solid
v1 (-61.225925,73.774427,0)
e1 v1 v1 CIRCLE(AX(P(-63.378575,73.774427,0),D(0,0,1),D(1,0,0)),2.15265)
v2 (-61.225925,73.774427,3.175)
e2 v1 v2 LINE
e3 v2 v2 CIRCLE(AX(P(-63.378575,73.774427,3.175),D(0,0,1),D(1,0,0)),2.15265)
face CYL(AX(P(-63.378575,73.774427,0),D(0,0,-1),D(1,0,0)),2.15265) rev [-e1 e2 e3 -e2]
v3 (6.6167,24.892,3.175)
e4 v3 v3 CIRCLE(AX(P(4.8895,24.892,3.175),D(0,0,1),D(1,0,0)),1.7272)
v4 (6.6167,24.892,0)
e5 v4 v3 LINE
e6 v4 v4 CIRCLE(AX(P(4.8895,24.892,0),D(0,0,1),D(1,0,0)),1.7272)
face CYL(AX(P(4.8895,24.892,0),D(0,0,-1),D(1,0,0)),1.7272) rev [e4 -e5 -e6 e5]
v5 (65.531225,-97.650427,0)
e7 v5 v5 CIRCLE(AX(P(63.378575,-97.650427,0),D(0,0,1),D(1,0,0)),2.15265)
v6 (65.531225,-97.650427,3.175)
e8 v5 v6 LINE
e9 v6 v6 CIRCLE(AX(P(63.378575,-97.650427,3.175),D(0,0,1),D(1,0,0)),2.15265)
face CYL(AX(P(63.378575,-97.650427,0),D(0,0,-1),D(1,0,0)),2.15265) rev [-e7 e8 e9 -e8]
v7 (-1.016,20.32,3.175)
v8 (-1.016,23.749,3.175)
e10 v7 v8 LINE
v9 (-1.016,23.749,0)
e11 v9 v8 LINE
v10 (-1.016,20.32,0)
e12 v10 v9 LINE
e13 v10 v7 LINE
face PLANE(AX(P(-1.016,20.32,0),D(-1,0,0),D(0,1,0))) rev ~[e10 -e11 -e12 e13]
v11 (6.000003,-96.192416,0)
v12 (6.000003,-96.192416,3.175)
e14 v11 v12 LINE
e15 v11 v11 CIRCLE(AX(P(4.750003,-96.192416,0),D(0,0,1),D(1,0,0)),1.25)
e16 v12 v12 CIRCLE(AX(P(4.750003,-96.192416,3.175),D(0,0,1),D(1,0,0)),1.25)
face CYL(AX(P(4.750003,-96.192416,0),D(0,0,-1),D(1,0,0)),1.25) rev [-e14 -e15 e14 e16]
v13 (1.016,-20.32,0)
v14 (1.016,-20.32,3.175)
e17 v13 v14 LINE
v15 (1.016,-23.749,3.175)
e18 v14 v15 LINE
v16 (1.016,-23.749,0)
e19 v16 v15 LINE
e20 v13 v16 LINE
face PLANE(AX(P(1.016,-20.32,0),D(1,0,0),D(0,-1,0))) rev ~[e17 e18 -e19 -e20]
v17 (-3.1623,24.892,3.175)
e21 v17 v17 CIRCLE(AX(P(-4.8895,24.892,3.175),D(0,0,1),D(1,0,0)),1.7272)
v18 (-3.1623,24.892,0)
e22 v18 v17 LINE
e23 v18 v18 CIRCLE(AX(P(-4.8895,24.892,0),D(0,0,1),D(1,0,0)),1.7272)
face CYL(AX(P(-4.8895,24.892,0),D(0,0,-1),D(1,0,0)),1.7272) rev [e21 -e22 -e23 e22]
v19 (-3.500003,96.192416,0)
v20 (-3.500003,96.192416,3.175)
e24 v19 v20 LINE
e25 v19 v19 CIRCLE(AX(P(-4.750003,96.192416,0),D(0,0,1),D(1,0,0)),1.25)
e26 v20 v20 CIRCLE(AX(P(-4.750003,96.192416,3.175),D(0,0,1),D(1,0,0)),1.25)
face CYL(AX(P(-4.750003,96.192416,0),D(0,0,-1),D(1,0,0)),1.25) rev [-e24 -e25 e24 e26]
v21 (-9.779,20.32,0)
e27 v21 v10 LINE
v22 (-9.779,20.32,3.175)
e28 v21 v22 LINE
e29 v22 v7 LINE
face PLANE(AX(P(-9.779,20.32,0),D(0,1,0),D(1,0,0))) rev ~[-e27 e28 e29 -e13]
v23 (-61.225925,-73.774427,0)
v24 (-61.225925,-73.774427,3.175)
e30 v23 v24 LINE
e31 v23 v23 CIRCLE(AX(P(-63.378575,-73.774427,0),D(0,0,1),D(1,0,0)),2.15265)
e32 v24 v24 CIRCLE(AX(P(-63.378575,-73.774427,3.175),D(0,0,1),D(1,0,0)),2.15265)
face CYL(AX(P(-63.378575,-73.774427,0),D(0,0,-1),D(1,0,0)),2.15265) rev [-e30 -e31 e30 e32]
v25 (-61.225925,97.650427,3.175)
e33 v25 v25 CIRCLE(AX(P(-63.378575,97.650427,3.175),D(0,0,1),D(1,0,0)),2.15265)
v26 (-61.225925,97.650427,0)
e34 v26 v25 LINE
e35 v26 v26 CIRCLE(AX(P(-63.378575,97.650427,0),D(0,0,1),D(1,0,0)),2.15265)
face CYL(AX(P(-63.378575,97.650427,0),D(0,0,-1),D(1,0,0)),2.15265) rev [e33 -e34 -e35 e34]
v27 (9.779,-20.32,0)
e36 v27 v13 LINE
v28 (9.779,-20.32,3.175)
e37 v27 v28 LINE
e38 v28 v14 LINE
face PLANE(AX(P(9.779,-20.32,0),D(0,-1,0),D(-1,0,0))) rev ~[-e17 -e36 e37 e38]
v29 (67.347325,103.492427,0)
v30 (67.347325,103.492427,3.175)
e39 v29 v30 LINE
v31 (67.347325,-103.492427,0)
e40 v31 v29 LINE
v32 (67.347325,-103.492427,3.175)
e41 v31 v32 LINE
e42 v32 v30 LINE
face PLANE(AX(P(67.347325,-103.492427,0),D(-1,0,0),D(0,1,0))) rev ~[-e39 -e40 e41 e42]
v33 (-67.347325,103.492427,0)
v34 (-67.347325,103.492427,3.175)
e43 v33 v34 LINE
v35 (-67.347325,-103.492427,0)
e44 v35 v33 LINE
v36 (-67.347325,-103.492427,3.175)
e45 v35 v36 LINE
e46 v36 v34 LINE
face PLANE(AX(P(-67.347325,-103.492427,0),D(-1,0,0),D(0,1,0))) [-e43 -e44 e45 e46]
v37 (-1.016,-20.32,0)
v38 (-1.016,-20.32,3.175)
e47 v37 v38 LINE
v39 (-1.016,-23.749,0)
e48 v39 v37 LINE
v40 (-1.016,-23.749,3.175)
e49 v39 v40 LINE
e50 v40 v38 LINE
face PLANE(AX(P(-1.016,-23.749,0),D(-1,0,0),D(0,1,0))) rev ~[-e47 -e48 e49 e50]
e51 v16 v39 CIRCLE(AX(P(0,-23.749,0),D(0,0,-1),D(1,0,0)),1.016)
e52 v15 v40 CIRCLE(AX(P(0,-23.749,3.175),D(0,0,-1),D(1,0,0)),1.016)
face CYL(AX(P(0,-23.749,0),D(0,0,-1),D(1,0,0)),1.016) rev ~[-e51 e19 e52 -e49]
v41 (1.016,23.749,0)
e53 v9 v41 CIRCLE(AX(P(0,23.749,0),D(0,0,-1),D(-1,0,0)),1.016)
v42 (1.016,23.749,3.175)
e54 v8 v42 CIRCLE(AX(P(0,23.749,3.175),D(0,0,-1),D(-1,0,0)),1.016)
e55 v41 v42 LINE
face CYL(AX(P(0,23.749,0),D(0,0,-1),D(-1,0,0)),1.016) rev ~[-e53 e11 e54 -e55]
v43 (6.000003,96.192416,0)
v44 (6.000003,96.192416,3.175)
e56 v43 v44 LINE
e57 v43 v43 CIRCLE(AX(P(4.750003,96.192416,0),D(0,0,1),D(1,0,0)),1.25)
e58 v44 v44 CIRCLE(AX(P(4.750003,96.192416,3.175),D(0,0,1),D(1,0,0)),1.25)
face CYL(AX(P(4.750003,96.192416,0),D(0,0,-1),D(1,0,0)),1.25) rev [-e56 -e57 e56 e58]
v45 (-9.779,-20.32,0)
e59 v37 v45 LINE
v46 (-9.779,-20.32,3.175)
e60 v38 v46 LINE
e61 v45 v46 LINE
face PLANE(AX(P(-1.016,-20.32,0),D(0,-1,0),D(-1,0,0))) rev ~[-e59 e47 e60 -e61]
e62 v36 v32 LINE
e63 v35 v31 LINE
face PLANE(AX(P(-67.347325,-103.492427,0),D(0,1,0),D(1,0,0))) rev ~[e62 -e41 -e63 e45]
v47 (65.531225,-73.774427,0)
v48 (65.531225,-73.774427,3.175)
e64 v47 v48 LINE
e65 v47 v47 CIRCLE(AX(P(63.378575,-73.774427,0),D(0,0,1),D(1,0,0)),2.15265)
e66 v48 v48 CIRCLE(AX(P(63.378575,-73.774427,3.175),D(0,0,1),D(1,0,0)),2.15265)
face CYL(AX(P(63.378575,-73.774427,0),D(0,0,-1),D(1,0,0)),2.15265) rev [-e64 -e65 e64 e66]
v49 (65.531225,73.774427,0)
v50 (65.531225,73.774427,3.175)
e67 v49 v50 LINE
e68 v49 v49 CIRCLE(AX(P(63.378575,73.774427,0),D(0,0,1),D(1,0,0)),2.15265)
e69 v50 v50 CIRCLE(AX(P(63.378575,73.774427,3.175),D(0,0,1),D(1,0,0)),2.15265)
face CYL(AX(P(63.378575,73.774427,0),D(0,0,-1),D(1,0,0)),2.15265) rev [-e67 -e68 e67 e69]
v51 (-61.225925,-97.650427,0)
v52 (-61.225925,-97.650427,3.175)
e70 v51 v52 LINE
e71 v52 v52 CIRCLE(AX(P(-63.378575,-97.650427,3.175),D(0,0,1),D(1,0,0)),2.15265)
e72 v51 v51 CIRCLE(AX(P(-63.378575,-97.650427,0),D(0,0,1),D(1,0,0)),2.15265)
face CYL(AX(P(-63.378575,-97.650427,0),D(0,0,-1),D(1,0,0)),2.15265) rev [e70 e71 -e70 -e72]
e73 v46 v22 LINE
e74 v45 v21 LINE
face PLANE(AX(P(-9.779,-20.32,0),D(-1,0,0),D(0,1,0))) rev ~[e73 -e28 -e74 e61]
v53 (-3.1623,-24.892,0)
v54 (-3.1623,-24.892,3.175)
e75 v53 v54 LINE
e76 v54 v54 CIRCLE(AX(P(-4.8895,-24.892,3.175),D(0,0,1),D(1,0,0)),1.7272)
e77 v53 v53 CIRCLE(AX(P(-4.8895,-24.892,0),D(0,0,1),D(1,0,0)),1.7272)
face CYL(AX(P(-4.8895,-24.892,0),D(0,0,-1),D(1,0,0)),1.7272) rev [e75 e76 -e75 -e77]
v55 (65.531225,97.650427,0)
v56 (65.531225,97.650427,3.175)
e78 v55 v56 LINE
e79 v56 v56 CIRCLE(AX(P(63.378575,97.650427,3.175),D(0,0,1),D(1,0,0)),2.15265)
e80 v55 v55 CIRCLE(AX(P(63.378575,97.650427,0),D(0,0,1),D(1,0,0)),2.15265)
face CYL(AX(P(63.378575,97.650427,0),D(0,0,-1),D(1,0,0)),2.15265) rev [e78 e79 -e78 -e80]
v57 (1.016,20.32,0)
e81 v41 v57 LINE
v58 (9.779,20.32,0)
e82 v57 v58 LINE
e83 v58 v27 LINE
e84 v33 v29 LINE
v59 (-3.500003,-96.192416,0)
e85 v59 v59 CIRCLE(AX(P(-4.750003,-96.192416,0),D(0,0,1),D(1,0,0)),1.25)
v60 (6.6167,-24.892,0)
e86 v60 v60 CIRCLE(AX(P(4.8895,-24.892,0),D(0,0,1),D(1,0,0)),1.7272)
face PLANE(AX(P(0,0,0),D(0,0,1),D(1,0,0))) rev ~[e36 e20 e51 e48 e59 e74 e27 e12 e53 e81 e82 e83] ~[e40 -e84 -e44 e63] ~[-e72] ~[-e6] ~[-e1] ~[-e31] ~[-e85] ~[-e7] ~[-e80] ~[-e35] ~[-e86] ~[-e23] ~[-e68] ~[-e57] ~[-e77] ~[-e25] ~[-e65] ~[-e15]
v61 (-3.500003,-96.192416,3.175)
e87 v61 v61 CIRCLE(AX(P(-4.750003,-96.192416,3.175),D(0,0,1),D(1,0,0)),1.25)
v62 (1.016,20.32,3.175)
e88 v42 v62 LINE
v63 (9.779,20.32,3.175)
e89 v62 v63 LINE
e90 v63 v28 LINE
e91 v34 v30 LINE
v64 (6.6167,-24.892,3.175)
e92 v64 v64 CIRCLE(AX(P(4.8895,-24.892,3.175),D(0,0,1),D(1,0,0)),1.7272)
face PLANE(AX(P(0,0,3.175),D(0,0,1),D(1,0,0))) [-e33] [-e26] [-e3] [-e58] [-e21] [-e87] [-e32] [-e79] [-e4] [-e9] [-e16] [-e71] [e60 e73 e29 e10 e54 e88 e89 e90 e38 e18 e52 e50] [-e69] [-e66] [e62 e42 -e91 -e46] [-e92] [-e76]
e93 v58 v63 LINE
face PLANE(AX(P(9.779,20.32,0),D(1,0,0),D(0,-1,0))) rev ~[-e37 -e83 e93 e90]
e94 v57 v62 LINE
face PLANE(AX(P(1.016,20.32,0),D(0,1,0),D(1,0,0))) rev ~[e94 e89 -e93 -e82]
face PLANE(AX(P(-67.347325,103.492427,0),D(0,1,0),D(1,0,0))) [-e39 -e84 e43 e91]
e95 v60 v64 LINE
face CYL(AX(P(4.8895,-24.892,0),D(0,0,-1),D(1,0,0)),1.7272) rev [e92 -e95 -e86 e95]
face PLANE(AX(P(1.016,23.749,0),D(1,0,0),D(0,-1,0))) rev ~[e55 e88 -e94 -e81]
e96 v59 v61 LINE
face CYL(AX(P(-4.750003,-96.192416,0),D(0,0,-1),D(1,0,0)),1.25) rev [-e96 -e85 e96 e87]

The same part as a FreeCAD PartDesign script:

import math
import FreeCAD as App
import Part
import Sketcher

V = App.Vector
Q = App.Units.Quantity


def add_polygon(sketch, points):
    """Adds a closed chain of lines whose ends are joined by coincident constraints."""
    first, n = sketch.GeometryCount, len(points)
    for a, b in zip(points, points[1:] + points[:1]):
        sketch.addGeometry(Part.LineSegment(App.Vector(*a, 0), App.Vector(*b, 0)), False)
    for i in range(n):
        sketch.addConstraint(Sketcher.Constraint("Coincident", first + i, 2, first + (i + 1) % n, 1))

doc = App.newDocument("Part")
body = doc.addObject("PartDesign::Body", "Body")

# Sketch on XY plane
sketch1 = body.newObject("Sketcher::SketchObject", "Sketch")
sketch1.AttachmentSupport = (doc.getObject("XY_Plane"), [""])
sketch1.MapMode = "FlatFace"
add_polygon(sketch1, [(-67.3, 103.5), (-67.3, -103.5), (67.3, -103.5), (67.3, 103.5)])  # lines 0-3
sketch1.addGeometry(Part.Circle(V(-63.4, -97.7, 0), V(0, 0, 1), 2.2), False)  # 4
sketch1.addGeometry(Part.Circle(V(-63.4, -73.8, 0), V(0, 0, 1), 2.2), False)  # 5
sketch1.addGeometry(Part.Circle(V(-4.8, -96.2, 0), V(0, 0, 1), 1.2), False)  # 6
sketch1.addGeometry(Part.Circle(V(-4.9, -24.9, 0), V(0, 0, 1), 1.7), False)  # 7
sketch1.addGeometry(Part.Circle(V(4.8, -96.2, 0), V(0, 0, 1), 1.2), False)  # 8
sketch1.addGeometry(Part.Circle(V(63.4, -97.7, 0), V(0, 0, 1), 2.2), False)  # 9
sketch1.addGeometry(Part.Circle(V(63.4, -73.8, 0), V(0, 0, 1), 2.2), False)  # 10
sketch1.addGeometry(Part.Circle(V(4.9, -24.9, 0), V(0, 0, 1), 1.7), False)  # 11
sketch1.addGeometry(Part.LineSegment(V(-1, -23.7, 0), V(-1, -20.3, 0)), False)  # 12
sketch1.addGeometry(Part.LineSegment(V(-1, -20.3, 0), V(-9.8, -20.3, 0)), False)  # 13
sketch1.addGeometry(Part.LineSegment(V(-9.8, -20.3, 0), V(-9.8, 20.3, 0)), False)  # 14
sketch1.addGeometry(Part.LineSegment(V(-9.8, 20.3, 0), V(-1, 20.3, 0)), False)  # 15
sketch1.addGeometry(Part.LineSegment(V(-1, 20.3, 0), V(-1, 23.7, 0)), False)  # 16
sketch1.addGeometry(Part.ArcOfCircle(Part.Circle(V(0, 23.7, 0), V(0, 0, 1), 1), math.radians(0), math.radians(180)), False)  # 17
sketch1.addGeometry(Part.LineSegment(V(1, 23.7, 0), V(1, 20.3, 0)), False)  # 18
sketch1.addGeometry(Part.LineSegment(V(1, 20.3, 0), V(9.8, 20.3, 0)), False)  # 19
sketch1.addGeometry(Part.LineSegment(V(9.8, 20.3, 0), V(9.8, -20.3, 0)), False)  # 20
sketch1.addGeometry(Part.LineSegment(V(9.8, -20.3, 0), V(1, -20.3, 0)), False)  # 21
sketch1.addGeometry(Part.LineSegment(V(1, -20.3, 0), V(1, -23.7, 0)), False)  # 22
sketch1.addGeometry(Part.ArcOfCircle(Part.Circle(V(0, -23.7, 0), V(0, 0, 1), 1), math.radians(180), math.radians(360)), False)  # 23
sketch1.addGeometry(Part.Circle(V(-4.9, 24.9, 0), V(0, 0, 1), 1.7), False)  # 24
sketch1.addGeometry(Part.Circle(V(-63.4, 73.8, 0), V(0, 0, 1), 2.2), False)  # 25
sketch1.addGeometry(Part.Circle(V(-63.4, 97.7, 0), V(0, 0, 1), 2.2), False)  # 26
sketch1.addGeometry(Part.Circle(V(-4.8, 96.2, 0), V(0, 0, 1), 1.2), False)  # 27
sketch1.addGeometry(Part.Circle(V(4.9, 24.9, 0), V(0, 0, 1), 1.7), False)  # 28
sketch1.addGeometry(Part.Circle(V(4.8, 96.2, 0), V(0, 0, 1), 1.2), False)  # 29
sketch1.addGeometry(Part.Circle(V(63.4, 73.8, 0), V(0, 0, 1), 2.2), False)  # 30
sketch1.addGeometry(Part.Circle(V(63.4, 97.7, 0), V(0, 0, 1), 2.2), False)  # 31
sketch1.addConstraint([
    Sketcher.Constraint("Coincident", 12, 2, 13, 1),
    Sketcher.Constraint("Coincident", 13, 2, 14, 1),
    Sketcher.Constraint("Coincident", 14, 2, 15, 1),
    Sketcher.Constraint("Coincident", 15, 2, 16, 1),
    Sketcher.Constraint("Tangent", 16, 2, 17, 2),
    Sketcher.Constraint("Tangent", 17, 1, 18, 1),
    Sketcher.Constraint("Coincident", 18, 2, 19, 1),
    Sketcher.Constraint("Coincident", 19, 2, 20, 1),
    Sketcher.Constraint("Coincident", 20, 2, 21, 1),
    Sketcher.Constraint("Coincident", 21, 2, 22, 1),
    Sketcher.Constraint("Tangent", 22, 2, 23, 2),
    Sketcher.Constraint("Tangent", 23, 1, 12, 1),
    Sketcher.Constraint("Vertical", 0),
    Sketcher.Constraint("Horizontal", 1),
    Sketcher.Constraint("Vertical", 2),
    Sketcher.Constraint("Horizontal", 3),
    Sketcher.Constraint("Vertical", 12),
    Sketcher.Constraint("Horizontal", 13),
    Sketcher.Constraint("Vertical", 14),
    Sketcher.Constraint("Horizontal", 15),
    Sketcher.Constraint("Vertical", 16),
    Sketcher.Constraint("Vertical", 18),
    Sketcher.Constraint("Horizontal", 19),
    Sketcher.Constraint("Vertical", 20),
    Sketcher.Constraint("Horizontal", 21),
    Sketcher.Constraint("Vertical", 22),
    Sketcher.Constraint("Equal", 4, 5),
    Sketcher.Constraint("Equal", 6, 8),
    Sketcher.Constraint("Equal", 5, 9),
    Sketcher.Constraint("Equal", 9, 10),
    Sketcher.Constraint("Equal", 7, 11),
    Sketcher.Constraint("Equal", 17, 23),
    Sketcher.Constraint("Equal", 11, 24),
    Sketcher.Constraint("Equal", 10, 25),
    Sketcher.Constraint("Equal", 25, 26),
    Sketcher.Constraint("Equal", 8, 27),
    Sketcher.Constraint("Equal", 24, 28),
    Sketcher.Constraint("Equal", 27, 29),
    Sketcher.Constraint("Equal", 26, 30),
    Sketcher.Constraint("Equal", 30, 31),
    Sketcher.Constraint("Symmetric", 17, 3, 23, 3, -1, 1),
    Sketcher.Constraint("Symmetric", 11, 3, 24, 3, -1, 1),
    Sketcher.Constraint("Symmetric", 10, 3, 25, 3, -1, 1),
    Sketcher.Constraint("Symmetric", 9, 3, 26, 3, -1, 1),
    Sketcher.Constraint("Symmetric", 8, 3, 27, 3, -1, 1),
    Sketcher.Constraint("Symmetric", 7, 3, 28, 3, -1, 1),
    Sketcher.Constraint("Symmetric", 6, 3, 29, 3, -1, 1),
    Sketcher.Constraint("Symmetric", 5, 3, 30, 3, -1, 1),
    Sketcher.Constraint("Symmetric", 4, 3, 31, 3, -1, 1),
    Sketcher.Constraint("Symmetric", 0, 2, 2, 2, -1, 1),
    Sketcher.Constraint("Symmetric", 13, 2, 19, 2, -1, 1),
    Sketcher.Constraint("Symmetric", 6, 3, 8, 3, -2),
    Sketcher.Constraint("Symmetric", 4, 3, 9, 3, -2),
    Sketcher.Constraint("Symmetric", 5, 3, 10, 3, -2),
    Sketcher.Constraint("Symmetric", 7, 3, 11, 3, -2),
    Sketcher.Constraint("Symmetric", 15, 2, 18, 2, -2),
    Sketcher.Constraint("Horizontal", 13, 2, 20, 2),
    Sketcher.Constraint("Vertical", 4, 3, 5, 3),
    Sketcher.Constraint("Radius", 17, Q("0.04 in")),
    Sketcher.Constraint("Diameter", 7, Q("0.136 in")),
    Sketcher.Constraint("DistanceY", 14, 1, 14, 2, Q("1.6 in")),
    Sketcher.Constraint("Diameter", 4, Q("0.1695 in")),
    Sketcher.Constraint("Diameter", 6, Q("2.5 mm")),
    Sketcher.Constraint("DistanceX", 13, 2, 13, 1, Q("0.345 in")),
    Sketcher.Constraint("DistanceY", 12, 1, 12, 2, Q("0.135 in")),
    Sketcher.Constraint("DistanceY", 7, 3, -1, 1, Q("0.98 in")),
    Sketcher.Constraint("DistanceY", 4, 3, 5, 3, Q("0.94 in")),
    Sketcher.Constraint("DistanceY", 0, 2, 4, 3, Q("0.23 in")),
    Sketcher.Constraint("DistanceX", 7, 3, 11, 3, Q("0.385 in")),
    Sketcher.Constraint("DistanceX", 0, 2, 4, 3, Q("0.15625 in")),
    Sketcher.Constraint("DistanceX", 1, 1, 1, 2, Q("134.69465 mm")),
    Sketcher.Constraint("DistanceY", 0, 2, 0, 1, Q("206.984854 mm")),
    Sketcher.Constraint("DistanceX", 4, 3, 6, 3, Q("58.628572 mm")),
    Sketcher.Constraint("DistanceY", 4, 3, 6, 3, Q("1.458011 mm")),
])
pad1 = body.newObject("PartDesign::Pad", "Pad")
pad1.Profile = sketch1
pad1.Length = Q("0.125 in")

doc.recompute()
